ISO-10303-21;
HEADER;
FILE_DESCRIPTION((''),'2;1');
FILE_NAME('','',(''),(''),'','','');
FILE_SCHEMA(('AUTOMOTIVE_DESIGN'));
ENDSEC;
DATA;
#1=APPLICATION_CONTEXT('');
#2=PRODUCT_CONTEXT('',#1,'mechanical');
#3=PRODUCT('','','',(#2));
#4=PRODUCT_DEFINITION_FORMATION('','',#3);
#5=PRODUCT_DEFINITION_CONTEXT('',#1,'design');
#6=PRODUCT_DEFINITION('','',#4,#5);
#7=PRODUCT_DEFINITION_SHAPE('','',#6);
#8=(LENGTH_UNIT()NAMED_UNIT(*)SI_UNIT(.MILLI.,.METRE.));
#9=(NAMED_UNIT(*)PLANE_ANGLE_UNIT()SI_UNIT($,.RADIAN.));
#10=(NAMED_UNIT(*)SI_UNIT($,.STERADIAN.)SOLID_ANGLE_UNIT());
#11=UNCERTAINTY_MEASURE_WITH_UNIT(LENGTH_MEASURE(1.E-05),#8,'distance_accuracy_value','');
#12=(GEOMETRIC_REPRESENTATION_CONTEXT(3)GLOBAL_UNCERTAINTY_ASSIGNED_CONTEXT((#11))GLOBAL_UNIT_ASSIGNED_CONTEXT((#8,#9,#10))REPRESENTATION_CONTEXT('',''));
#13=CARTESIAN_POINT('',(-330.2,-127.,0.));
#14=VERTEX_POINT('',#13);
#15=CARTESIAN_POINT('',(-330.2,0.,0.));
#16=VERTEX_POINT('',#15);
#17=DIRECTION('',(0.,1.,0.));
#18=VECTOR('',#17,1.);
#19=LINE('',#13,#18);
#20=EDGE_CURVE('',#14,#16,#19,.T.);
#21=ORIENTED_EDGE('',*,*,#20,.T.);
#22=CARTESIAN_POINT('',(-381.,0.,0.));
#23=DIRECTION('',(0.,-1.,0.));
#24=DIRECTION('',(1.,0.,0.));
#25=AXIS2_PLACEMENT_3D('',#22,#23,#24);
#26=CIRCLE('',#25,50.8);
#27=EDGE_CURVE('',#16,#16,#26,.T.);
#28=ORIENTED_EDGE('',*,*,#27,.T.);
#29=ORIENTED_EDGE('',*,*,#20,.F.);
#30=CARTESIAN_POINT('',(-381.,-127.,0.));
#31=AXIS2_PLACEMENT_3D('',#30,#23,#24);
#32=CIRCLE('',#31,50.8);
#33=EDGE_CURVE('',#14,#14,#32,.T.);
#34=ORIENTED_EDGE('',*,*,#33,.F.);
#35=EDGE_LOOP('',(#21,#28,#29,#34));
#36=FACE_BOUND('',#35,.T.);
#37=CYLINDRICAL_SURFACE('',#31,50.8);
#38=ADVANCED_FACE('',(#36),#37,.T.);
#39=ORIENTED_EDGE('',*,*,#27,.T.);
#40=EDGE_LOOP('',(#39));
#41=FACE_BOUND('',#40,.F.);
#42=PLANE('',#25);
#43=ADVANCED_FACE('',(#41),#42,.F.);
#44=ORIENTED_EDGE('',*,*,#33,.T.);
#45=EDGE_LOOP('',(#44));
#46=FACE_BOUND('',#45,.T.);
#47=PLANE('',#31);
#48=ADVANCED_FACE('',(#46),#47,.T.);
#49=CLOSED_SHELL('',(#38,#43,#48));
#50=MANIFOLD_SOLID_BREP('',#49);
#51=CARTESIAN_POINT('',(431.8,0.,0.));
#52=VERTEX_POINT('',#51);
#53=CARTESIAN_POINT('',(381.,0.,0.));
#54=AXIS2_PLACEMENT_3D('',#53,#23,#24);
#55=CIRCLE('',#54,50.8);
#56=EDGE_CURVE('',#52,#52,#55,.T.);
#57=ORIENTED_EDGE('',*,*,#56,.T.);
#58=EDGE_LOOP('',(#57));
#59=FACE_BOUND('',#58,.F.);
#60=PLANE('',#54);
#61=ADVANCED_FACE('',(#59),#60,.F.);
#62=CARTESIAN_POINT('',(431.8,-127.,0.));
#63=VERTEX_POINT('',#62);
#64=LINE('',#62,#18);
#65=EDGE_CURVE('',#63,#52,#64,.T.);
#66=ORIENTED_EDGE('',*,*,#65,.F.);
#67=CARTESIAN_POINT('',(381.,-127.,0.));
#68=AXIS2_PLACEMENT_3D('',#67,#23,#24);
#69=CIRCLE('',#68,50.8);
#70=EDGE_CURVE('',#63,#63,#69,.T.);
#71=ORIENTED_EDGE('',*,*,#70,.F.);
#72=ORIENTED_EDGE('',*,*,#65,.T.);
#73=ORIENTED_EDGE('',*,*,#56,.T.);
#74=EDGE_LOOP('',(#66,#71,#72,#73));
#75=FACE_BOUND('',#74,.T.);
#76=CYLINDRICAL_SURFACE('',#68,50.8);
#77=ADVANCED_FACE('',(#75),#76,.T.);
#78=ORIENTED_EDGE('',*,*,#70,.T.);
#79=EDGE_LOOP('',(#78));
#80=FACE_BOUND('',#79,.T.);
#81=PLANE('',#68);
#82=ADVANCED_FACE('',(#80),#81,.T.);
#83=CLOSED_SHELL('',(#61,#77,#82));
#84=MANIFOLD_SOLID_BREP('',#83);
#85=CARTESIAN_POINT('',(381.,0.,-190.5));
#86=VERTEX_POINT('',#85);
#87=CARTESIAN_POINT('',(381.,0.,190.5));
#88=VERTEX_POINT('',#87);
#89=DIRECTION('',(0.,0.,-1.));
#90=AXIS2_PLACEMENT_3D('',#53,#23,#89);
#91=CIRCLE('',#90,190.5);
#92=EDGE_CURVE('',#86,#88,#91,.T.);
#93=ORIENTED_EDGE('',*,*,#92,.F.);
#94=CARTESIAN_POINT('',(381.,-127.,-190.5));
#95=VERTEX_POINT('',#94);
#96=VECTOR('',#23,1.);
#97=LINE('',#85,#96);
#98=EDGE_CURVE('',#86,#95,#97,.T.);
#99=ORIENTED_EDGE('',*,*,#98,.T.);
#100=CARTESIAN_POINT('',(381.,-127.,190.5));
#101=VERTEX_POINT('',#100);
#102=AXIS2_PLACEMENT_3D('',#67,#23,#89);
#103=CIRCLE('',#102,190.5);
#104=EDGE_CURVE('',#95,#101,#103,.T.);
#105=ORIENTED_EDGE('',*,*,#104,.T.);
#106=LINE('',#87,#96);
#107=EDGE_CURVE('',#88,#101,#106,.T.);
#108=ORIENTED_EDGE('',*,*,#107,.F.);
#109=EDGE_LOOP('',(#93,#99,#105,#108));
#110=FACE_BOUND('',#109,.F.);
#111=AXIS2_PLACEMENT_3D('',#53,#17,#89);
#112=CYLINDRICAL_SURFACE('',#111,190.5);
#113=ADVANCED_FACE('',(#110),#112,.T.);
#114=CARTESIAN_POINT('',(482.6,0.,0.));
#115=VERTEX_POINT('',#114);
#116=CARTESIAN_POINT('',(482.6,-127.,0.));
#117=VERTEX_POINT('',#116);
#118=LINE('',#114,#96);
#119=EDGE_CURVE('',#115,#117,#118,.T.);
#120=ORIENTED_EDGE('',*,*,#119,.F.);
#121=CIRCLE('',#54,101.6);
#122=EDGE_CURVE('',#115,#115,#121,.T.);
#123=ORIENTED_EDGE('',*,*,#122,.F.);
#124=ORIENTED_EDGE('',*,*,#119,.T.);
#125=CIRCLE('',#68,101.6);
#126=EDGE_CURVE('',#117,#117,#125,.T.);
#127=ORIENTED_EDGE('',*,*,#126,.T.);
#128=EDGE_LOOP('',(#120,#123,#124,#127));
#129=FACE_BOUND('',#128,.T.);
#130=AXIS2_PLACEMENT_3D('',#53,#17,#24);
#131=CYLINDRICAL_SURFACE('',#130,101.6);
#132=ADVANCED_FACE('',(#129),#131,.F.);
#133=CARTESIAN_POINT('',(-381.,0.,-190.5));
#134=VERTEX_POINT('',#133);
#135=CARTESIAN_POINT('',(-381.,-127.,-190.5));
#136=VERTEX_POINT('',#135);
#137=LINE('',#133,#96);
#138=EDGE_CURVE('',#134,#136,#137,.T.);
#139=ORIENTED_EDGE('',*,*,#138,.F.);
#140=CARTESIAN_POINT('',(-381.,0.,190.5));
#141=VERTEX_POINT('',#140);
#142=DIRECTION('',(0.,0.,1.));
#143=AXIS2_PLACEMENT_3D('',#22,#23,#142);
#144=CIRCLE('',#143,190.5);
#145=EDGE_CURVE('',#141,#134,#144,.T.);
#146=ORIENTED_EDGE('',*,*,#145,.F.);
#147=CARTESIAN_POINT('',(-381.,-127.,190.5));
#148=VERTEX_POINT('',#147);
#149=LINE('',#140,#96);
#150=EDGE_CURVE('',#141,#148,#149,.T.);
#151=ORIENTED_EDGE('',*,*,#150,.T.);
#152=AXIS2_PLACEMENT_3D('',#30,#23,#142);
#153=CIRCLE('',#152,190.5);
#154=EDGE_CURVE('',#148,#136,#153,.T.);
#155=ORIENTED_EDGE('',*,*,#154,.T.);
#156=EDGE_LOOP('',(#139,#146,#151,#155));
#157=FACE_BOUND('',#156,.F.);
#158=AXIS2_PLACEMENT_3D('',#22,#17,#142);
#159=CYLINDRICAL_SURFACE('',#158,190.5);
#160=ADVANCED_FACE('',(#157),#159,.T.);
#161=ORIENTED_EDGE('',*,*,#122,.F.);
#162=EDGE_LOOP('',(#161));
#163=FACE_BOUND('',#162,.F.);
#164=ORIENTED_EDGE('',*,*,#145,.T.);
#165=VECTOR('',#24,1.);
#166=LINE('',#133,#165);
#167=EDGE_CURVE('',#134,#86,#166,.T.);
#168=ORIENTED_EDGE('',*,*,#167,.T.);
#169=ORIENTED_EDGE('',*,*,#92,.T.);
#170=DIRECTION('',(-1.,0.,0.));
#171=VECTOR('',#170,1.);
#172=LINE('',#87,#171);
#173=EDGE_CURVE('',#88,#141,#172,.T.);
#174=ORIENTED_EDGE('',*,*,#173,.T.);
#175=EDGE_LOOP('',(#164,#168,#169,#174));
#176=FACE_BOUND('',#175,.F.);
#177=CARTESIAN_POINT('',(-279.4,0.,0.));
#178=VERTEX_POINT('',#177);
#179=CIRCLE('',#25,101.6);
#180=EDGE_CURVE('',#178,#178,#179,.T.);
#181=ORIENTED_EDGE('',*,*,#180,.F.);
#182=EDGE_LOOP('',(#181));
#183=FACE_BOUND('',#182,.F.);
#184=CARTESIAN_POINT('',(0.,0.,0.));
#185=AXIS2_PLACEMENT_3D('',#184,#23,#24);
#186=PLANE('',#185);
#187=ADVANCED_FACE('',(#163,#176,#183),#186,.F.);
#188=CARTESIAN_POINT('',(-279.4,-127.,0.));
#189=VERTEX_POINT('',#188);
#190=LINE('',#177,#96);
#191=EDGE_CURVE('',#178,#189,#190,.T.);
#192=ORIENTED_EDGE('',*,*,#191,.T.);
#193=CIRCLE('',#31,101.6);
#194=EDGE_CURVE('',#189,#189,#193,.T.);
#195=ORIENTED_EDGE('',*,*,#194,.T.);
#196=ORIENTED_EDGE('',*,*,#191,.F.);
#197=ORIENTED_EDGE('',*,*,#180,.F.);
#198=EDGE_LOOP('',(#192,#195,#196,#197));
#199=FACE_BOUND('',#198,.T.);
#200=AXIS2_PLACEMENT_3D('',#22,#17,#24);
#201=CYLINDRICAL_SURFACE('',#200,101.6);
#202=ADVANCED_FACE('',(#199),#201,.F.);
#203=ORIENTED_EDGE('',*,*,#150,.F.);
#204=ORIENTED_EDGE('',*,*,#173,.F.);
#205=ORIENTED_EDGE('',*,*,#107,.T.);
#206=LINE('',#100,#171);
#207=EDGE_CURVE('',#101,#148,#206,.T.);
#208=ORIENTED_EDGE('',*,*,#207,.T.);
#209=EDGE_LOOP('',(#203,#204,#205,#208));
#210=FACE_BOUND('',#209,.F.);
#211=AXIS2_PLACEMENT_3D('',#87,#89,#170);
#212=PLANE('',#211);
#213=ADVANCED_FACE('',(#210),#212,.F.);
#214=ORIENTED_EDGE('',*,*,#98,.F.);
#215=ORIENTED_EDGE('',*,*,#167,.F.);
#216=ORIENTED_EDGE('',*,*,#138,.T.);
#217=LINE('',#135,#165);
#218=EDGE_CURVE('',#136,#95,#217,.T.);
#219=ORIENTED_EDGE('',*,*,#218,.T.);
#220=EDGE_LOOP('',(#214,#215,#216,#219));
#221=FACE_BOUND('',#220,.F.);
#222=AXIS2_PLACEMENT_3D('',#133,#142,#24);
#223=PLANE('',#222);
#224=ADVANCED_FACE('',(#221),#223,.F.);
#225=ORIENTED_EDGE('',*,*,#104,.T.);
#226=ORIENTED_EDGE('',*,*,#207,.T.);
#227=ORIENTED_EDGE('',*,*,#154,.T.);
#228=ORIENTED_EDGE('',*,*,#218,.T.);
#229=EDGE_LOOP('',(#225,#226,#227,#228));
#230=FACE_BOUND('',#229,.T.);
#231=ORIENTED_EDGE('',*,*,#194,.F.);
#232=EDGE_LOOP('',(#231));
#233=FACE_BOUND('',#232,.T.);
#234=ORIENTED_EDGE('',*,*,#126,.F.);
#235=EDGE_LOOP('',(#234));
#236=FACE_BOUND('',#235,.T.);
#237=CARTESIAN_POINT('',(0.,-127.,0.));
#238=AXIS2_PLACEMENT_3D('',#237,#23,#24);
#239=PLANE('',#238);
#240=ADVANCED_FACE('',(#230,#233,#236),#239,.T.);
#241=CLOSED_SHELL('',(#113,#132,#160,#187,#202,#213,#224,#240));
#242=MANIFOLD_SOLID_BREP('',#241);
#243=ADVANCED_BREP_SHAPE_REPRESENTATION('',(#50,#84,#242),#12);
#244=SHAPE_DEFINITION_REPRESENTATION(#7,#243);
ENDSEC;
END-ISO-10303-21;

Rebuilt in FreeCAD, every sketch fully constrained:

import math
import FreeCAD as App
import Part
import Sketcher
from FreeCAD import Vector
Q = App.Units.Quantity

doc = App.newDocument("Part")
body = doc.addObject("PartDesign::Body", "Body")

sketch1 = doc.addObject("Sketcher::SketchObject", "Sketch")
body.addObject(sketch1)
sketch1.AttachmentSupport = (doc.XZ_Plane, [""])
sketch1.MapMode = "FlatFace"
sketch1.addGeometry([
    Part.LineSegment(Vector(381, 190.5, 0), Vector(-381, 190.5, 0)),
    Part.ArcOfCircle(Part.Circle(Vector(-381, 0, 0), Vector(0, 0, 1), 190.5), math.radians(90), math.radians(270)),
    Part.LineSegment(Vector(-381, -190.5, 0), Vector(381, -190.5, 0)),
    Part.ArcOfCircle(Part.Circle(Vector(381, 0, 0), Vector(0, 0, 1), 190.5), math.radians(-90), math.radians(90)),
    Part.Circle(Vector(-381, 0, 0), Vector(0, 0, 1), 101.6),
    Part.Circle(Vector(381, 0, 0), Vector(0, 0, 1), 101.6),
], False)
sketch1.addConstraint([
    Sketcher.Constraint("Tangent", 0, 2, 1, 1),
    Sketcher.Constraint("Tangent", 1, 2, 2, 1),
    Sketcher.Constraint("Tangent", 2, 2, 3, 1),
    Sketcher.Constraint("Tangent", 3, 2, 0, 1),
    Sketcher.Constraint("Horizontal", 0),
    Sketcher.Constraint("Horizontal", 2),
    Sketcher.Constraint("Coincident", 4, 3, 1, 3),
    Sketcher.Constraint("Coincident", 5, 3, 3, 3),
    Sketcher.Constraint("Equal", 4, 5),
    Sketcher.Constraint("Symmetric", 1, 3, 3, 3, -1, 1),
    Sketcher.Constraint("Diameter", 4, Q("8 in")),
    Sketcher.Constraint("Radius", 1, Q("7.5 in")),
    Sketcher.Constraint("DistanceX", 0, 2, 0, 1, Q("30 in")),
])
pad1 = doc.addObject("PartDesign::Pad", "Pad")
body.addObject(pad1)
pad1.Profile = sketch1
pad1.Length = Q("5 in")
body2 = doc.addObject("PartDesign::Body", "Body001")
body2.AllowCompound = True

sketch2 = doc.addObject("Sketcher::SketchObject", "Sketch001")
body2.addObject(sketch2)
sketch2.AttachmentSupport = (doc.getObject("XZ_Plane001"), [""])
sketch2.MapMode = "FlatFace"
sketch2.AttachmentOffset = App.Placement(Vector(0, 0, 5 * 25.4), App.Rotation())
sketch2.addGeometry([
    Part.Circle(Vector(-381, 0, 0), Vector(0, 0, 1), 50.8),
    Part.Circle(Vector(381, 0, 0), Vector(0, 0, 1), 50.8),
], False)
sketch2.addConstraint([
    Sketcher.Constraint("Equal", 0, 1),
    Sketcher.Constraint("Symmetric", 0, 3, 1, 3, -1, 1),
    Sketcher.Constraint("PointOnObject", 0, 3, -1),
    Sketcher.Constraint("Diameter", 0, Q("4 in")),
    Sketcher.Constraint("DistanceX", 0, 3, -1, 1, Q("15 in")),
])
pad2 = doc.addObject("PartDesign::Pad", "Pad001")
body2.addObject(pad2)
pad2.Profile = sketch2
pad2.Length = Q("5 in")
pad2.Reversed = True

doc.recompute()
